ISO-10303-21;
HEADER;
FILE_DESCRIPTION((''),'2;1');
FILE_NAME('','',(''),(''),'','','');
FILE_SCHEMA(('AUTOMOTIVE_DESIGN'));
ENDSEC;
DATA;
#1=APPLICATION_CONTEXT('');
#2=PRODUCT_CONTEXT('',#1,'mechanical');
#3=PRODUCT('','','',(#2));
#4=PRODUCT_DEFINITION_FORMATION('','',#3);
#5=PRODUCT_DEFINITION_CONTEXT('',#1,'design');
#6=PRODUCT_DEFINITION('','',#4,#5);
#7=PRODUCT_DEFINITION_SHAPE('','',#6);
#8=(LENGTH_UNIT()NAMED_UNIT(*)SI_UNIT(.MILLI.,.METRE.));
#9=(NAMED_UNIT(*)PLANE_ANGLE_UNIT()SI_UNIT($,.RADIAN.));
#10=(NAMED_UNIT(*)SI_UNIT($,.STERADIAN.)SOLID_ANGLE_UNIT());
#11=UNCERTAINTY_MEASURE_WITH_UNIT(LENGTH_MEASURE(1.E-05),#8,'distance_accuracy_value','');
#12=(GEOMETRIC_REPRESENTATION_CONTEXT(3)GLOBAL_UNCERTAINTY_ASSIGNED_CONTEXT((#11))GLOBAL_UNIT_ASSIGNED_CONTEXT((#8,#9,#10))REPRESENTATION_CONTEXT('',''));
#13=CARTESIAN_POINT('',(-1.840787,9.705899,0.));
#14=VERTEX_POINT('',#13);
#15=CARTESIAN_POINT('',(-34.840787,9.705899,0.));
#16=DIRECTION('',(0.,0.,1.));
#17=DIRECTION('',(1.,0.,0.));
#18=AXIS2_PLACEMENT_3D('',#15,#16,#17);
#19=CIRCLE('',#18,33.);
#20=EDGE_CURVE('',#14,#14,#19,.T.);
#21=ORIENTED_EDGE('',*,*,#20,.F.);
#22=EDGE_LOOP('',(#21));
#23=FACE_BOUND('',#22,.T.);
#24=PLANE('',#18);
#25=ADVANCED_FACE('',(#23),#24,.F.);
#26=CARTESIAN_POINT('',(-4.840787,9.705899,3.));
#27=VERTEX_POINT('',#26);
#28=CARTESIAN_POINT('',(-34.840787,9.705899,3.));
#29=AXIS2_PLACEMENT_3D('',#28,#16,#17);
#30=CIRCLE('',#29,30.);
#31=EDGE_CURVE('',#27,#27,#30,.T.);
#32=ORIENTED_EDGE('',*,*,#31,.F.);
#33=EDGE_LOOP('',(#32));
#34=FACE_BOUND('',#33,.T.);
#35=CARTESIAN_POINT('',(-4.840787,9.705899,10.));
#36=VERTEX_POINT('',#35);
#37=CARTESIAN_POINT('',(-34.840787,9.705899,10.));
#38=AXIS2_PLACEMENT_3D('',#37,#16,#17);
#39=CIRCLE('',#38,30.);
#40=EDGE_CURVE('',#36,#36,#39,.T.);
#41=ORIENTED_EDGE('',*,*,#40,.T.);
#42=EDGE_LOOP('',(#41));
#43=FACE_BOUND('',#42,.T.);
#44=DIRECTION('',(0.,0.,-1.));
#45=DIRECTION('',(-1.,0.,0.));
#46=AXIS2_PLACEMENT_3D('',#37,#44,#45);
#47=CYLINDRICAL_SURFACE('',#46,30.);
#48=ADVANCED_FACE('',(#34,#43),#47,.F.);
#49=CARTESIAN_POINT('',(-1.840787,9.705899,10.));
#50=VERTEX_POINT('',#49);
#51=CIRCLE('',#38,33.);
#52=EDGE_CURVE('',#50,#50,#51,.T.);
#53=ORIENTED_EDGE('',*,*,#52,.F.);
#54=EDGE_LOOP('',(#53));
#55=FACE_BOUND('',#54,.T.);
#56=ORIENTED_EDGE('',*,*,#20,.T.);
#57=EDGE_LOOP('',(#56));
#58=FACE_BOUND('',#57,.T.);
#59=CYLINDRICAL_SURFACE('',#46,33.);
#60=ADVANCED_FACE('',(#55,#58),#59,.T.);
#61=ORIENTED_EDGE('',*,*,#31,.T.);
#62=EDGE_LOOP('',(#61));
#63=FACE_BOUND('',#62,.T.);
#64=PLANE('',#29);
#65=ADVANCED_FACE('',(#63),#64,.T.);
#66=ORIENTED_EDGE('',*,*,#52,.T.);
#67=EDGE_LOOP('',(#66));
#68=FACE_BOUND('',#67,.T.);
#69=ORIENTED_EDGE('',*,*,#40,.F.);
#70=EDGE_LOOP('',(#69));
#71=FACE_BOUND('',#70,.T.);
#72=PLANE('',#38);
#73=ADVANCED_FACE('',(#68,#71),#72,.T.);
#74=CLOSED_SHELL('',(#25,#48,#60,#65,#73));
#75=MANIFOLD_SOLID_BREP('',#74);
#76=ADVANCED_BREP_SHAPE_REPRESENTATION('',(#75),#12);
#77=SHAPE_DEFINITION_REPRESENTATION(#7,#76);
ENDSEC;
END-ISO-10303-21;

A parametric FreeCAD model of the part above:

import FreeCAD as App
import Part
import Sketcher

V = App.Vector


def faces_at(feature, points):
    """Names of the faces that lie closest to the given points."""
    faces = feature.Shape.Faces
    near = lambda p: min(range(len(faces)), key=lambda i: faces[i].distToShape(Part.Vertex(*p))[0])
    return sorted({f"Face{near(p) + 1}" for p in points})

doc = App.newDocument("Part")
body = doc.addObject("PartDesign::Body", "Body")

sketch1 = body.newObject("Sketcher::SketchObject", "Sketch")
sketch1.AttachmentSupport = (doc.getObject("XY_Plane"), [""])
sketch1.MapMode = "FlatFace"
sketch1.addGeometry(Part.Circle(V(-34.840787, 9.705899, 0), V(0, 0, 1), 33), False)
sketch1.addConstraint([
    Sketcher.Constraint("Diameter", 0, 66.0),
    Sketcher.Constraint("DistanceY", -1, 1, 0, 3, 9.705899),
    Sketcher.Constraint("DistanceX", 0, 3, -1, 1, 34.840787),
])
pad1 = body.newObject("PartDesign::Pad", "Pad")
pad1.Profile = sketch1
pad1.Length = 10
doc.recompute()

thickness = body.newObject("PartDesign::Thickness", "Thickness")
thickness.Base = (pad1, faces_at(pad1, [(-34.841, 9.706, 10)]))
thickness.Value = 3
thickness.Reversed = True
thickness.Join = "Intersection"

doc.recompute()
